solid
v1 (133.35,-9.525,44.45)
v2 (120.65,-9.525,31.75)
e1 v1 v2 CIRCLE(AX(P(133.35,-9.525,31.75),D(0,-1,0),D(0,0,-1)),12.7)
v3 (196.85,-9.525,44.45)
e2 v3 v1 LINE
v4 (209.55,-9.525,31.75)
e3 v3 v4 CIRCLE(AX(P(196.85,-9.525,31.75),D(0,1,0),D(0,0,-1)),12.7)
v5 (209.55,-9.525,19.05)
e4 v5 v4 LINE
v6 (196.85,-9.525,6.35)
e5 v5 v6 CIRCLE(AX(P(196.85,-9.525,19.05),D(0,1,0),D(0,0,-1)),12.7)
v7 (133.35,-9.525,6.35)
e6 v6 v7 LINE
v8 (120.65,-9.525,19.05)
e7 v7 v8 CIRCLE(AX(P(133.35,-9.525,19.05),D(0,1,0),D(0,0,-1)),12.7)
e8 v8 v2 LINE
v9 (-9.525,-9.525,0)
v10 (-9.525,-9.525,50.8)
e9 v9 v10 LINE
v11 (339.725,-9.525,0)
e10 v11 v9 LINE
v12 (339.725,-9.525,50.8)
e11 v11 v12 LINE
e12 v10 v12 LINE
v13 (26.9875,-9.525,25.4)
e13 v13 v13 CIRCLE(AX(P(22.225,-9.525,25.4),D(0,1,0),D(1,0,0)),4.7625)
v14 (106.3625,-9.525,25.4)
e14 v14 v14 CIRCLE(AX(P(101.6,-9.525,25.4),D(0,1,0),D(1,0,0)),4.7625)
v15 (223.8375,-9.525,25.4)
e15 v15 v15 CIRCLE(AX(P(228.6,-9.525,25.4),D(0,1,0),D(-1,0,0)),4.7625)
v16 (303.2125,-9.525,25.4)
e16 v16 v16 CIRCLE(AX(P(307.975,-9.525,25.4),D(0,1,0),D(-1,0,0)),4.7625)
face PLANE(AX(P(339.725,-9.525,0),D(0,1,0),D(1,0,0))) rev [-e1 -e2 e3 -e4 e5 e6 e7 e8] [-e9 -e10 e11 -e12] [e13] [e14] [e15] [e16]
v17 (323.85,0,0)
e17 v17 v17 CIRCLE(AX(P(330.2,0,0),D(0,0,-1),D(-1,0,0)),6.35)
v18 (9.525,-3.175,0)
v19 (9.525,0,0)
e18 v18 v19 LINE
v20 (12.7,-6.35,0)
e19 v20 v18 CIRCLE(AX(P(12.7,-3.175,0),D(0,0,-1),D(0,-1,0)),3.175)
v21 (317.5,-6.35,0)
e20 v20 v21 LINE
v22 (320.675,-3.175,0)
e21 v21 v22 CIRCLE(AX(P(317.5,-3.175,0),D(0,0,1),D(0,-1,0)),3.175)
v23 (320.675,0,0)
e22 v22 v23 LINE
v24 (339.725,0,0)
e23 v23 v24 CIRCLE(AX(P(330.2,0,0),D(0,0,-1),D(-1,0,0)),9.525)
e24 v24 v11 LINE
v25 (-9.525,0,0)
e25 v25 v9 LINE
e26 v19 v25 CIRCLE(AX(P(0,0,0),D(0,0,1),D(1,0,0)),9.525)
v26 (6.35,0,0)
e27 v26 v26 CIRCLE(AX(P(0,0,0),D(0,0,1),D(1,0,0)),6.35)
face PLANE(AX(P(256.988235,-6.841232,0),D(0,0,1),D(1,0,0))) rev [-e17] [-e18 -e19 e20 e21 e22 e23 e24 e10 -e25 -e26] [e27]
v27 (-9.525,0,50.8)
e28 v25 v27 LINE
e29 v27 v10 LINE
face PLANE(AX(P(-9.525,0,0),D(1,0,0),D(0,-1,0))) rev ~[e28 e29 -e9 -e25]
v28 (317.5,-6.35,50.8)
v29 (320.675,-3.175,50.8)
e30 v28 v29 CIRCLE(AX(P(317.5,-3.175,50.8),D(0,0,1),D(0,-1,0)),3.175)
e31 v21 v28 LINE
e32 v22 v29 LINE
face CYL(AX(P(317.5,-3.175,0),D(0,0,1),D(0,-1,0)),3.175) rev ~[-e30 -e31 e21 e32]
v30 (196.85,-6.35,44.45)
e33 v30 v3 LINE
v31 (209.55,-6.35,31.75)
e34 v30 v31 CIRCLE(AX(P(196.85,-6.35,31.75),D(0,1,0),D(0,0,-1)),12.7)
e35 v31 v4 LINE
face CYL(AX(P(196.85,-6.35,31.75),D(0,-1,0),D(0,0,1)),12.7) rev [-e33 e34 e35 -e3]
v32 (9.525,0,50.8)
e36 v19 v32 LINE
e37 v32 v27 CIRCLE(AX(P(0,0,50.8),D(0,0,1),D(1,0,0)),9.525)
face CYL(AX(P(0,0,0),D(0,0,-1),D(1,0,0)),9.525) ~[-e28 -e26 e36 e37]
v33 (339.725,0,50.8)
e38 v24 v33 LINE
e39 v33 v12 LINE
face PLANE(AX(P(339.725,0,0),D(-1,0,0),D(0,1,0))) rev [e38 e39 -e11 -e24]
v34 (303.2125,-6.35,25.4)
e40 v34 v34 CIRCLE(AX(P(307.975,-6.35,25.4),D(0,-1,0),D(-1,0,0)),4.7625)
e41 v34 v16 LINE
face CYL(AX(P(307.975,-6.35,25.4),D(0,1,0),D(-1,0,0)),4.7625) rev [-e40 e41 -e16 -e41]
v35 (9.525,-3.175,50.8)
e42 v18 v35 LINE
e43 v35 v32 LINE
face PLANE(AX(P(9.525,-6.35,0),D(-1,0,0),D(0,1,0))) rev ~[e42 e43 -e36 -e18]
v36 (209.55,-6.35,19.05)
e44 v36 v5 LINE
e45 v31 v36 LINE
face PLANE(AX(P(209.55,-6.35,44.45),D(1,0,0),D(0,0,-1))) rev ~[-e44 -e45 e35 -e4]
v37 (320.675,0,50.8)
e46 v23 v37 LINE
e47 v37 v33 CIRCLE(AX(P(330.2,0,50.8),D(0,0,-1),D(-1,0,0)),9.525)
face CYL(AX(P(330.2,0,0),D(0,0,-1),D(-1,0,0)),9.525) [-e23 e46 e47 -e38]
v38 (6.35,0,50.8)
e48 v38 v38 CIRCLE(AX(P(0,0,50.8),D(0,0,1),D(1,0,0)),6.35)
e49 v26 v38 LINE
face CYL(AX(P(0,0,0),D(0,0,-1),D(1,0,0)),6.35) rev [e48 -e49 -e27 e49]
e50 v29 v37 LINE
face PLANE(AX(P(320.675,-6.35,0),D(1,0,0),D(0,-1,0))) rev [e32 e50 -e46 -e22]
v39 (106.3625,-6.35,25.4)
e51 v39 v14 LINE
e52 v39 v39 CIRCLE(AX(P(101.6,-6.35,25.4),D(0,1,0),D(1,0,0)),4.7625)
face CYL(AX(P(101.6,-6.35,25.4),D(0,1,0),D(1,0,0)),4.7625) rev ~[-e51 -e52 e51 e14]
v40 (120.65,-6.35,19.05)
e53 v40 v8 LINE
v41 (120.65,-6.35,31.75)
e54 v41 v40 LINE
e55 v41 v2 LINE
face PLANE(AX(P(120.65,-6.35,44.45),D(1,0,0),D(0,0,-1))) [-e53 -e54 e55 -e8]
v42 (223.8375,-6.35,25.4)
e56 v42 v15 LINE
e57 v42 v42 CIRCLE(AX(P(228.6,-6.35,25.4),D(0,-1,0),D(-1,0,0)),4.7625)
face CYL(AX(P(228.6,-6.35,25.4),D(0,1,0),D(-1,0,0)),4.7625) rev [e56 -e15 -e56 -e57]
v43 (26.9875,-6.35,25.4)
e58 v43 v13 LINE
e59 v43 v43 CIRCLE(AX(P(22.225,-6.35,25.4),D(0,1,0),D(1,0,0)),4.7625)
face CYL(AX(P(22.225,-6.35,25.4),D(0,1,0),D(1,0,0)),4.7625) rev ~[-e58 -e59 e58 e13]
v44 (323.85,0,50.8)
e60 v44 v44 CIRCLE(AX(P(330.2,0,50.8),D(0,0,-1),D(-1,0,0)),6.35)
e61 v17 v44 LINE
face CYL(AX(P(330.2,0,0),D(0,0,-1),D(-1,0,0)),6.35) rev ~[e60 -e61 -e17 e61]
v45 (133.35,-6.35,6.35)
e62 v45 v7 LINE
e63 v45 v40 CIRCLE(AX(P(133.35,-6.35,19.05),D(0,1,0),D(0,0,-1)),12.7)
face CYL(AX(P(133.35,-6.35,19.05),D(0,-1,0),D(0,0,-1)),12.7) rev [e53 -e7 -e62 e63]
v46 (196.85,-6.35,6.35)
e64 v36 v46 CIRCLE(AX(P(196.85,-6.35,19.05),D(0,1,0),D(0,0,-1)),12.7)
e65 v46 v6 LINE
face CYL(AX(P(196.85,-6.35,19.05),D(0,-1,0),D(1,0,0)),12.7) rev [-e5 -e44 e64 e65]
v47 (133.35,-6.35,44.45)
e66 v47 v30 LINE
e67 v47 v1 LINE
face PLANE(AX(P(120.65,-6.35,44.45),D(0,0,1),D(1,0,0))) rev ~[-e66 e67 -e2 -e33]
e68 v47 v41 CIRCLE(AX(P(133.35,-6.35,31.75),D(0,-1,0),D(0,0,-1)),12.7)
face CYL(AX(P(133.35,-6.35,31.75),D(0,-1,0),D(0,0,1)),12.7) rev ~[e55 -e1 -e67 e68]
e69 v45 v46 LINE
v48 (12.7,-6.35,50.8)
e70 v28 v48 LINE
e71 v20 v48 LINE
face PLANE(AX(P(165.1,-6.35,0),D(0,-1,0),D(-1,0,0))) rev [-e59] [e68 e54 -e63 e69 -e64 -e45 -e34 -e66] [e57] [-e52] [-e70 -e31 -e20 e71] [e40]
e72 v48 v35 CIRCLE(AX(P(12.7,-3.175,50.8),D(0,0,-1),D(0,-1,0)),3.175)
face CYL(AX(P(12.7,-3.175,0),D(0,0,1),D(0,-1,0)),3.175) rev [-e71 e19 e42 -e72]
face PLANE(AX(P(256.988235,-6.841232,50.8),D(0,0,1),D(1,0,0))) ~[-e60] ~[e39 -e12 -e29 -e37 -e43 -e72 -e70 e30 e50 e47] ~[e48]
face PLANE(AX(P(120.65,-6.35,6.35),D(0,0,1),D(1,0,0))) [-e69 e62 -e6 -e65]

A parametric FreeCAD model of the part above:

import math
import FreeCAD as App
import Part
import Sketcher
Q = App.Units.Quantity


def edges_at(feature, points):
    """Names of the edges that pass closest to the given points."""
    edges = feature.Shape.Edges
    near = lambda p: min(range(len(edges)), key=lambda i: edges[i].distToShape(Part.Vertex(*p))[0])
    return sorted({f"Edge{near(p) + 1}" for p in points})

doc = App.newDocument("Part")
params = doc.addObject("Spreadsheet::Sheet", "Params")
for row, (alias, value) in enumerate([
    ("sketch1_diameter", "0.5 in"),
    ("sketch1_radius", "0.375 in"),
    ("sketch1_height", "0.25 in"),
    ("sketch1_height2", "0.375 in"),
    ("pad1_length", "2 in"),
    ("sketch2_diameter", "0.375 in"),
    ("pocket1_length", "0.5 in"),
    ("sketch3_width", "3.5 in"),
    ("sketch3_height", "1.5 in"),
    ("fillet_radius", "0.5 in"),
    ("fillet2_radius", "0.125 in"),
], start=1):
    params.set(f"A{row}", alias)
    params.set(f"B{row}", "=" + value)
    params.setAlias(f"B{row}", alias)

body = doc.addObject("PartDesign::Body", "Body")

# Sketch on XY plane
sketch1 = body.newObject("Sketcher::SketchObject", "Sketch")
sketch1.AttachmentSupport = (doc.getObject("XY_Plane"), [""])
sketch1.MapMode = "FlatFace"
sketch1.addGeometry([
    Part.ArcOfCircle(Part.Circle(App.Vector(0, 0, 0), App.Vector(0, 0, 1), 9.5), math.radians(0), math.radians(180)),  # 0
    Part.LineSegment(App.Vector(-9.5, 0, 0), App.Vector(-9.5, -9.5, 0)),  # 1
    Part.LineSegment(App.Vector(-9.5, -9.5, 0), App.Vector(165.1, -9.5, 0)),  # 2
    Part.LineSegment(App.Vector(165.1, -9.5, 0), App.Vector(165.1, -6.3, 0)),  # 3
    Part.LineSegment(App.Vector(165.1, -6.3, 0), App.Vector(9.5, -6.3, 0)),  # 4
    Part.LineSegment(App.Vector(9.5, -6.3, 0), App.Vector(9.5, 0, 0)),  # 5
    Part.Circle(App.Vector(0, 0, 0), App.Vector(0, 0, 1), 6.3),  # 6
], False)
sketch1.addConstraint([
    Sketcher.Constraint("Tangent", 0, 2, 1, 1),
    Sketcher.Constraint("Coincident", 1, 2, 2, 1),
    Sketcher.Constraint("Coincident", 2, 2, 3, 1),
    Sketcher.Constraint("Coincident", 3, 2, 4, 1),
    Sketcher.Constraint("Coincident", 4, 2, 5, 1),
    Sketcher.Constraint("Tangent", 5, 2, 0, 1),
    Sketcher.Constraint("Vertical", 1),
    Sketcher.Constraint("Horizontal", 2),
    Sketcher.Constraint("Vertical", 3),
    Sketcher.Constraint("Horizontal", 4),
    Sketcher.Constraint("Vertical", 5),
    Sketcher.Constraint("Coincident", 0, 3, -1, 1),
    Sketcher.Constraint("Coincident", 6, 3, -1, 1),
    Sketcher.Constraint("Diameter", 6, Q("0.5 in")),
    Sketcher.Constraint("Radius", 0, Q("0.375 in")),
    Sketcher.Constraint("DistanceY", 5, 1, 5, 2, Q("0.25 in")),
    Sketcher.Constraint("DistanceX", -1, 1, 2, 2, Q("6.5 in")),
    Sketcher.Constraint("DistanceY", 1, 2, 1, 1, Q("0.375 in")),
])
sketch1.setExpression("Constraints[13]", "Params.sketch1_diameter")
sketch1.setExpression("Constraints[14]", "Params.sketch1_radius")
sketch1.setExpression("Constraints[15]", "Params.sketch1_height")
sketch1.setExpression("Constraints[17]", "Params.sketch1_height2")
pad1 = body.newObject("PartDesign::Pad", "Pad")
pad1.Profile = sketch1
pad1.setExpression("Length", "Params.pad1_length")

# Sketch on XZ plane
sketch2 = body.newObject("Sketcher::SketchObject", "Sketch001")
sketch2.AttachmentSupport = (doc.getObject("XZ_Plane"), [""])
sketch2.MapMode = "FlatFace"
sketch2.AttachmentOffset = App.Placement(App.Vector(0, 0, 0.25 * 25.4), App.Rotation())
sketch2.addGeometry([
    Part.Circle(App.Vector(22.2, 25.4, 0), App.Vector(0, 0, 1), 4.8),
    Part.Circle(App.Vector(101.6, 25.4, 0), App.Vector(0, 0, 1), 4.8),
], False)
sketch2.addConstraint([
    Sketcher.Constraint("Equal", 0, 1),
    Sketcher.Constraint("Horizontal", 0, 3, 1, 3),
    Sketcher.Constraint("Diameter", 0, Q("0.375 in")),
    Sketcher.Constraint("DistanceY", -1, 1, 0, 3, Q("1 in")),
    Sketcher.Constraint("DistanceX", -1, 1, 1, 3, Q("4 in")),
    Sketcher.Constraint("DistanceX", -1, 1, 0, 3, Q("0.875 in")),
])
sketch2.setExpression("Constraints[2]", "Params.sketch2_diameter")
pocket1 = body.newObject("PartDesign::Pocket", "Pocket")
pocket1.Profile = sketch2
pocket1.setExpression("Length", "Params.pocket1_length")
pocket1.Reversed = True
doc.recompute()

datumplane = body.newObject("PartDesign::Plane", "DatumPlane")
datumplane.AttachmentSupport = (doc.getObject("YZ_Plane"), [""])
datumplane.MapMode = "FlatFace"
datumplane.AttachmentOffset = App.Placement(App.Vector(0, 0, 6.5 * 25.4), App.Rotation())
mirrored = body.newObject("PartDesign::Mirrored", "Mirrored")
mirrored.Originals = [pad1, pocket1]
mirrored.MirrorPlane = (datumplane, [""])
body.Tip = mirrored

# Sketch on XZ plane
sketch3 = body.newObject("Sketcher::SketchObject", "Sketch002")
sketch3.AttachmentSupport = (doc.getObject("XZ_Plane"), [""])
sketch3.MapMode = "FlatFace"
sketch3.AttachmentOffset = App.Placement(App.Vector(0, 0, 0.25 * 25.4), App.Rotation())
sketch3.addGeometry([
    Part.LineSegment(App.Vector(121, 6, 0), App.Vector(121, 44, 0)),
    Part.LineSegment(App.Vector(121, 44, 0), App.Vector(210, 44, 0)),
    Part.LineSegment(App.Vector(210, 44, 0), App.Vector(210, 6, 0)),
    Part.LineSegment(App.Vector(210, 6, 0), App.Vector(121, 6, 0)),
], False)
sketch3.addConstraint([
    Sketcher.Constraint("Coincident", 0, 2, 1, 1),
    Sketcher.Constraint("Coincident", 1, 2, 2, 1),
    Sketcher.Constraint("Coincident", 2, 2, 3, 1),
    Sketcher.Constraint("Coincident", 3, 2, 0, 1),
    Sketcher.Constraint("Vertical", 0),
    Sketcher.Constraint("Horizontal", 1),
    Sketcher.Constraint("Vertical", 2),
    Sketcher.Constraint("Horizontal", 3),
    Sketcher.Constraint("DistanceX", 1, 1, 1, 2, Q("3.5 in")),
    Sketcher.Constraint("DistanceY", 0, 1, 0, 2, Q("1.5 in")),
    Sketcher.Constraint("DistanceX", -1, 1, 0, 2, Q("4.75 in")),
    Sketcher.Constraint("DistanceY", -1, 1, 0, 2, Q("1.75 in")),
])
sketch3.setExpression("Constraints[8]", "Params.sketch3_width")
sketch3.setExpression("Constraints[9]", "Params.sketch3_height")
pocket2 = body.newObject("PartDesign::Pocket", "Pocket001")
pocket2.Profile = sketch3
pocket2.Type = "ThroughAll"
pocket2.Reversed = True
doc.recompute()

fillet = body.newObject("PartDesign::Fillet", "Fillet")
fillet.Base = (pocket2, edges_at(pocket2, [
    (120.65, -7.938, 44.45),
    (120.65, -7.938, 6.35),
    (209.55, -7.938, 6.35),
    (209.55, -7.938, 44.45),
]))
fillet.setExpression("Radius", "Params.fillet_radius")
doc.recompute()

fillet2 = body.newObject("PartDesign::Fillet", "Fillet001")
fillet2.Base = (fillet, edges_at(fillet, [(9.525, -6.35, 25.4), (320.675, -6.35, 25.4)]))
fillet2.setExpression("Radius", "Params.fillet2_radius")

doc.recompute()
